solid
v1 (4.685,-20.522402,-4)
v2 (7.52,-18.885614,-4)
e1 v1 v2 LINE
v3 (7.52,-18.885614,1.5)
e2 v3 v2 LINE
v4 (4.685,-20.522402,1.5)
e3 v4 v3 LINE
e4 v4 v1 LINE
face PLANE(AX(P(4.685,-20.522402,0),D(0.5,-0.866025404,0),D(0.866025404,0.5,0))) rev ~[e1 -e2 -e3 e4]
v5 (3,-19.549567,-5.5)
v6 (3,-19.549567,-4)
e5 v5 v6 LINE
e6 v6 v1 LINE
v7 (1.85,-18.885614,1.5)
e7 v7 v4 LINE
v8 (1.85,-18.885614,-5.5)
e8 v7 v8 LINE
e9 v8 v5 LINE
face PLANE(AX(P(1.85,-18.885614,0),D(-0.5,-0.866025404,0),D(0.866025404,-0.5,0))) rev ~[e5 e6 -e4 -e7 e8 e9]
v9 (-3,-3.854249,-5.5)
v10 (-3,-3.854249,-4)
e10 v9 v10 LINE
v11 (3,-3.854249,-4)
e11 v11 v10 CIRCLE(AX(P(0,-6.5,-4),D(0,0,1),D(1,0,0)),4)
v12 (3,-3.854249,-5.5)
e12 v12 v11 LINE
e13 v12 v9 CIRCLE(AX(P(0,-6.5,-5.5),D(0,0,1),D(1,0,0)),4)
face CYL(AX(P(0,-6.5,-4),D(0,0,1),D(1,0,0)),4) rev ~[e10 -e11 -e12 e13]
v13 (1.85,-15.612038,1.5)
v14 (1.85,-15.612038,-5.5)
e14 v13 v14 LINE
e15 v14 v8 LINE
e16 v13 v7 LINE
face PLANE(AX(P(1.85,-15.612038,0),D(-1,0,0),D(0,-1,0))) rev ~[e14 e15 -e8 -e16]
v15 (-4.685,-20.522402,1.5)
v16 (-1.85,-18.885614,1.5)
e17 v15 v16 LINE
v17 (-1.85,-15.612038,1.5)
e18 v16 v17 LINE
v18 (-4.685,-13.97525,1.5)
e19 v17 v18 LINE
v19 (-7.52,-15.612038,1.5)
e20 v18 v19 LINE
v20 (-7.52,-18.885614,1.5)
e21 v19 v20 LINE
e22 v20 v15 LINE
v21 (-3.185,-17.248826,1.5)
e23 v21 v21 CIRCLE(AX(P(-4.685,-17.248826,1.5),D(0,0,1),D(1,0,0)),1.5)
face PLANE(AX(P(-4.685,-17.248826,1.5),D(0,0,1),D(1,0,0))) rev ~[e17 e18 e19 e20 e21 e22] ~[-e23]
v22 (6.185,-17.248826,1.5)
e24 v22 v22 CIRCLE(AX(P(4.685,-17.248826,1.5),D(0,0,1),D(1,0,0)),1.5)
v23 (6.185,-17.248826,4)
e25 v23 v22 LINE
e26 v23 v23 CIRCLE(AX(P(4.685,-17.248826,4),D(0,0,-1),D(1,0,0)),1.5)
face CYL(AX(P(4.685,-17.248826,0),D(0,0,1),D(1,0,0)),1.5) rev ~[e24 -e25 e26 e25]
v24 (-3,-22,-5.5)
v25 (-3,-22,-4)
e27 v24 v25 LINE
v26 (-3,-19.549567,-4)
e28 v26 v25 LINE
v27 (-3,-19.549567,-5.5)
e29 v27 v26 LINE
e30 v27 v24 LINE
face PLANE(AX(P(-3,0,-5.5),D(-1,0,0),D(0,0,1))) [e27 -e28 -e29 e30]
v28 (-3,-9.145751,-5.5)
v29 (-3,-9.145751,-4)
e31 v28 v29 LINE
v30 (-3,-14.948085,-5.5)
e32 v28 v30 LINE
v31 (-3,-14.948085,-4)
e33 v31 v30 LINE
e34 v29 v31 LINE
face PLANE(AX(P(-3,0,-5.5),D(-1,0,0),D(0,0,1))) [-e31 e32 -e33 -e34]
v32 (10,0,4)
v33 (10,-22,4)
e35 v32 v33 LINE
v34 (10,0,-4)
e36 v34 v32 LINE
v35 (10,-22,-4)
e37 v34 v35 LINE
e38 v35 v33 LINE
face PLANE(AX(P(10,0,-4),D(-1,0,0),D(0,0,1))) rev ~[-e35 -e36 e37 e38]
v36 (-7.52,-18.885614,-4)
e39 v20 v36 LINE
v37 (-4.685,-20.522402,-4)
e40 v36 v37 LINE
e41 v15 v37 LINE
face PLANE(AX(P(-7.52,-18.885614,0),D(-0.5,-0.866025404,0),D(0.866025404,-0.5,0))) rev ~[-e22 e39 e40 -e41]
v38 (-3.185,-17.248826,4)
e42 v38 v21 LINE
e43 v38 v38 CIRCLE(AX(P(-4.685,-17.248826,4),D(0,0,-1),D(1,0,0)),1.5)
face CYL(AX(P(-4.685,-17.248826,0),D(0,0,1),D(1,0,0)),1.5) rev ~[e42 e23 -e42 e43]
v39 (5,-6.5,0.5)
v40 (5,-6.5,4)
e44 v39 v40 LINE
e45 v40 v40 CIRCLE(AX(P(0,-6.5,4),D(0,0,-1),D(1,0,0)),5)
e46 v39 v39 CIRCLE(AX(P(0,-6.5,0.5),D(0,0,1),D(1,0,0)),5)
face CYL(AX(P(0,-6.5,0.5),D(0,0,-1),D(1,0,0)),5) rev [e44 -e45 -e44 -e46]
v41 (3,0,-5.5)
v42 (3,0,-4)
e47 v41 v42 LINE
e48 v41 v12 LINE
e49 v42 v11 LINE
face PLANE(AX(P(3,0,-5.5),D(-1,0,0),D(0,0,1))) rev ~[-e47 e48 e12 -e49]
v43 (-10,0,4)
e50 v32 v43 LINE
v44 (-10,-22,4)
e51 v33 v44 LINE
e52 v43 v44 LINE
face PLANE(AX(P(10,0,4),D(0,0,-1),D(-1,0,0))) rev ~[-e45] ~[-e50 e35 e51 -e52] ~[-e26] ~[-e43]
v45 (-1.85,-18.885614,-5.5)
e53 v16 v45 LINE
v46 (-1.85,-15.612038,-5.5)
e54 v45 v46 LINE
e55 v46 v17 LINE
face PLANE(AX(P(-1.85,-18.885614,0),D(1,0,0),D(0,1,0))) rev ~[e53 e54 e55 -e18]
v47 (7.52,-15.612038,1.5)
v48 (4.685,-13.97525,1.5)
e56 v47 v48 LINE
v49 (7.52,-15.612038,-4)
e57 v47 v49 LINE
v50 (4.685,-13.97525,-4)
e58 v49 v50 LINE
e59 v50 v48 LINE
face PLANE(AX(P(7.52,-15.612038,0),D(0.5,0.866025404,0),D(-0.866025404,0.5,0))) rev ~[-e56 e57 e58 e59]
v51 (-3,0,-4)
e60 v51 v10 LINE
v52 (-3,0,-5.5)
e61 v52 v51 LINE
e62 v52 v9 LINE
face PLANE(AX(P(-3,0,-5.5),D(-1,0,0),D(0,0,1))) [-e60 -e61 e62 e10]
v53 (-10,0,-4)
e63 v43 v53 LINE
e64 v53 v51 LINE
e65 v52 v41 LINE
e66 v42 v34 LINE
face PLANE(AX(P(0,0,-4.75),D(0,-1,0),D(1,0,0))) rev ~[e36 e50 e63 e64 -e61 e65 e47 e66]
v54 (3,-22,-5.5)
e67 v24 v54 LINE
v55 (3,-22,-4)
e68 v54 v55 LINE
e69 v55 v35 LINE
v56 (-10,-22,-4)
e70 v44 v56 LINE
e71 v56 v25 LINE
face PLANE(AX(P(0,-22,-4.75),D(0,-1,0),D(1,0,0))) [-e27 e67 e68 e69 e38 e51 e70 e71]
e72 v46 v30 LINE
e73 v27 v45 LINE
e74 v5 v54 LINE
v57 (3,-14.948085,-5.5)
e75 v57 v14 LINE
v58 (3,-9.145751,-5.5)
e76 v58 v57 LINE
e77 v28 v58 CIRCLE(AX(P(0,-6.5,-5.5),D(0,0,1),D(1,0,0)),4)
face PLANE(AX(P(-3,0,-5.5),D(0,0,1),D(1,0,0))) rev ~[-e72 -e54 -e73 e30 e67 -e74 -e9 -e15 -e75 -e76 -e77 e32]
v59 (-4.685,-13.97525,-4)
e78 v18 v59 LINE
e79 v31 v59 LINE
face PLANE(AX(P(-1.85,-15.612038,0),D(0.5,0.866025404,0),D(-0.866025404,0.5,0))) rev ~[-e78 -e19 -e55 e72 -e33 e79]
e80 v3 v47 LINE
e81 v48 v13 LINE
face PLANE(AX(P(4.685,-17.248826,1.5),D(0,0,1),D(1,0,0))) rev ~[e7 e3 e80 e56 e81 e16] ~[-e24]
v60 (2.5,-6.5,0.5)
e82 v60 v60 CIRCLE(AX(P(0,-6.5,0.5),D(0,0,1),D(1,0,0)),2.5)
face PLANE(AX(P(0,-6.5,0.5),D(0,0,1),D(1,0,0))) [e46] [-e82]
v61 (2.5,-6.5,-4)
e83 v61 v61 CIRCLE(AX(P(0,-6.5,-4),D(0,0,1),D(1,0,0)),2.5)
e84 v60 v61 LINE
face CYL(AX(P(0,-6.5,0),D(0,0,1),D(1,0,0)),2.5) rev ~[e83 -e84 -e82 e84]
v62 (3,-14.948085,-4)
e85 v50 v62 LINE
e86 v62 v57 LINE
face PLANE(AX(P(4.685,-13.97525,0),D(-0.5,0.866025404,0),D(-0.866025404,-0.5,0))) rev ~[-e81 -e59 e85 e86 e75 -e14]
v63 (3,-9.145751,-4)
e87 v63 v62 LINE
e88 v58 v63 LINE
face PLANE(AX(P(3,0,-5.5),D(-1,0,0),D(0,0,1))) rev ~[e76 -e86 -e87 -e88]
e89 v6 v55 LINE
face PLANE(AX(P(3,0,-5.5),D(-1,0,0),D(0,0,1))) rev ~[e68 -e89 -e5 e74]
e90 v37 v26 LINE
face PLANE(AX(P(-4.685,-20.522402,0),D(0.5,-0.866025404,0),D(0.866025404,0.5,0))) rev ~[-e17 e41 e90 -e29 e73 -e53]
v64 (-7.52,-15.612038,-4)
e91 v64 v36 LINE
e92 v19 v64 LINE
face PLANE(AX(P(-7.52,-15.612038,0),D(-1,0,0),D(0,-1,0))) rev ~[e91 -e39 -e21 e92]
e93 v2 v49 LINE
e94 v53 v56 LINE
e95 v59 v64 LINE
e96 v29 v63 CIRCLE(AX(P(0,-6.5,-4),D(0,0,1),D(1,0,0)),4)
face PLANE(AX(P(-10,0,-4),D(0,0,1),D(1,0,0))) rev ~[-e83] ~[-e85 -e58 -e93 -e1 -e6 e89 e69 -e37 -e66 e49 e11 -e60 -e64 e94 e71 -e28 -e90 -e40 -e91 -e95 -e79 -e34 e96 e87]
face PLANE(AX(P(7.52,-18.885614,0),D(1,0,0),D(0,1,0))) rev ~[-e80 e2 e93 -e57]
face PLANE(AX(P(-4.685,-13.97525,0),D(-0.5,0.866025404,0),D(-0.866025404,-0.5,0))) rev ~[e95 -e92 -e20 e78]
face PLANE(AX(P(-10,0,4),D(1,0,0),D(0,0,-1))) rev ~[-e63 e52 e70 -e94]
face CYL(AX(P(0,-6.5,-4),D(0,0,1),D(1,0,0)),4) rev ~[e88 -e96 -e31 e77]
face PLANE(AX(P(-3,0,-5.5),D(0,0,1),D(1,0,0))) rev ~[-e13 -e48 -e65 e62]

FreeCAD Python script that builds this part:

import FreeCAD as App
import Part
import Sketcher
from FreeCAD import Vector
Q = App.Units.Quantity


def add_polygon(sketch, points):
    """Adds a closed chain of lines whose ends are joined by coincident constraints."""
    first, n = sketch.GeometryCount, len(points)
    for a, b in zip(points, points[1:] + points[:1]):
        sketch.addGeometry(Part.LineSegment(App.Vector(*a, 0), App.Vector(*b, 0)), False)
    for i in range(n):
        sketch.addConstraint(Sketcher.Constraint("Coincident", first + i, 2, first + (i + 1) % n, 1))

doc = App.newDocument("Part")
body = doc.addObject("PartDesign::Body", "Body")

sketch1 = doc.addObject("Sketcher::SketchObject", "Sketch")
body.addObject(sketch1)
sketch1.AttachmentSupport = (doc.XZ_Plane, [""])
sketch1.MapMode = "FlatFace"
add_polygon(sketch1, [(-3, -4), (-3, -5.5), (3, -5.5), (3, -4), (10, -4), (10, 4), (-10, 4), (-10, -4)])
sketch1.addConstraint(Sketcher.Constraint("Vertical", 0))
sketch1.addConstraint(Sketcher.Constraint("Horizontal", 1))
sketch1.addConstraint(Sketcher.Constraint("Vertical", 2))
sketch1.addConstraint(Sketcher.Constraint("Horizontal", 3))
sketch1.addConstraint(Sketcher.Constraint("Vertical", 4))
sketch1.addConstraint(Sketcher.Constraint("Horizontal", 5))
sketch1.addConstraint(Sketcher.Constraint("Vertical", 6))
sketch1.addConstraint(Sketcher.Constraint("Horizontal", 7))
sketch1.addConstraint(Sketcher.Constraint("Symmetric", 3, 2, 5, 2, -1, 1))
sketch1.addConstraint(Sketcher.Constraint("Symmetric", 2, 2, 7, 2, -2))
sketch1.addConstraint(Sketcher.Constraint("DistanceX", 1, 1, 1, 2, Q("6 mm")))
sketch1.addConstraint(Sketcher.Constraint("DistanceX", 3, 1, 3, 2, Q("7 mm")))
sketch1.addConstraint(Sketcher.Constraint("DistanceY", 4, 1, 4, 2, Q("8 mm")))
sketch1.addConstraint(Sketcher.Constraint("DistanceY", 0, 2, 0, 1, Q("1.5 mm")))
pad1 = doc.addObject("PartDesign::Pad", "Pad")
body.addObject(pad1)
pad1.Profile = sketch1
pad1.Length = 22

sketch2 = doc.addObject("Sketcher::SketchObject", "Sketch001")
body.addObject(sketch2)
sketch2.AttachmentSupport = (doc.XY_Plane, [""])
sketch2.MapMode = "FlatFace"
sketch2.addGeometry(Part.Circle(Vector(0, -6.5, 0), Vector(0, 0, 1), 2.5), False)
sketch2.addConstraint(Sketcher.Constraint("PointOnObject", 0, 3, -2))
sketch2.addConstraint(Sketcher.Constraint("Diameter", 0, Q("5 mm")))
sketch2.addConstraint(Sketcher.Constraint("DistanceY", 0, 3, -1, 1, Q("6.5 mm")))
pocket1 = doc.addObject("PartDesign::Pocket", "Pocket")
body.addObject(pocket1)
pocket1.Profile = sketch2
pocket1.Type = "ThroughAll"
pocket1.Midplane = True

sketch3 = doc.addObject("Sketcher::SketchObject", "Sketch002")
body.addObject(sketch3)
sketch3.AttachmentSupport = (doc.XY_Plane, [""])
sketch3.MapMode = "FlatFace"
sketch3.AttachmentOffset = App.Placement(Vector(0, 0, 0.5), App.Rotation())
sketch3.addGeometry(Part.Circle(Vector(0, -6.5, 0), Vector(0, 0, 1), 5), False)
sketch3.addGeometry(Part.Circle(Vector(0, -6.5, 0), Vector(0, 0, 1), 2.5), False)
sketch3.addConstraint(Sketcher.Constraint("Coincident", 1, 3, 0, 3))
sketch3.addConstraint(Sketcher.Constraint("PointOnObject", 0, 3, -2))
sketch3.addConstraint(Sketcher.Constraint("Diameter", 0, Q("10 mm")))
sketch3.addConstraint(Sketcher.Constraint("Diameter", 1, Q("5 mm")))
sketch3.addConstraint(Sketcher.Constraint("DistanceY", 0, 3, -1, 1, Q("6.5 mm")))
pocket2 = doc.addObject("PartDesign::Pocket", "Pocket001")
body.addObject(pocket2)
pocket2.Profile = sketch3
pocket2.Length = 24.5
pocket2.Reversed = True

sketch4 = doc.addObject("Sketcher::SketchObject", "Sketch003")
body.addObject(sketch4)
sketch4.AttachmentSupport = (doc.XY_Plane, [""])
sketch4.MapMode = "FlatFace"
sketch4.addGeometry(Part.Circle(Vector(-4.7, -17.2, 0), Vector(0, 0, 1), 1.5), False)
sketch4.addGeometry(Part.Circle(Vector(4.7, -17.2, 0), Vector(0, 0, 1), 1.5), False)
sketch4.addConstraint(Sketcher.Constraint("Equal", 0, 1))
sketch4.addConstraint(Sketcher.Constraint("Symmetric", 0, 3, 1, 3, -2))
sketch4.addConstraint(Sketcher.Constraint("Diameter", 0, Q("3 mm")))
sketch4.addConstraint(Sketcher.Constraint("DistanceX", 0, 3, 1, 3, Q("9.37 mm")))
sketch4.addConstraint(Sketcher.Constraint("DistanceY", 0, 3, -1, 1, Q("17.248826 mm")))
pocket3 = doc.addObject("PartDesign::Pocket", "Pocket002")
body.addObject(pocket3)
pocket3.Profile = sketch4
pocket3.Type = "ThroughAll"
pocket3.Midplane = True

sketch5 = doc.addObject("Sketcher::SketchObject", "Sketch004")
body.addObject(sketch5)
sketch5.AttachmentSupport = (doc.XY_Plane, [""])
sketch5.MapMode = "FlatFace"
add_polygon(sketch5, [(-1.9, -18.9), (-1.9, -15.6), (-4.7, -14), (-7.5, -15.6), (-7.5, -18.9), (-4.7, -20.5)])
sketch5.addGeometry(Part.Circle(Vector(-4.7, -17.2, 0), Vector(0, 0, 1), 1.5), False)
add_polygon(sketch5, [(7.5, -18.9), (7.5, -15.6), (4.7, -14), (1.9, -15.6), (1.9, -18.9), (4.7, -20.5)])
sketch5.addGeometry(Part.Circle(Vector(4.7, -17.2, 0), Vector(0, 0, 1), 1.5), False)
sketch5.addConstraint(Sketcher.Constraint("Vertical", 0))
sketch5.addConstraint(Sketcher.Constraint("Vertical", 3))
sketch5.addConstraint(Sketcher.Constraint("Vertical", 7))
sketch5.addConstraint(Sketcher.Constraint("Vertical", 10))
sketch5.addConstraint(Sketcher.Constraint("Equal", 6, 13))
sketch5.addConstraint(Sketcher.Constraint("Symmetric", 6, 3, 13, 3, -2))
sketch5.addConstraint(Sketcher.Constraint("Symmetric", 2, 2, 7, 2, -2))
sketch5.addConstraint(Sketcher.Constraint("Symmetric", 1, 2, 8, 2, -2))
sketch5.addConstraint(Sketcher.Constraint("Symmetric", 0, 2, 9, 2, -2))
sketch5.addConstraint(Sketcher.Constraint("Symmetric", 4, 2, 11, 2, -2))
sketch5.addConstraint(Sketcher.Constraint("Parallel", 1, 4))
sketch5.addConstraint(Sketcher.Constraint("Parallel", 2, 5))
sketch5.addConstraint(Sketcher.Constraint("Parallel", 4, 8))
sketch5.addConstraint(Sketcher.Constraint("Parallel", 8, 11))
sketch5.addConstraint(Sketcher.Constraint("Parallel", 9, 12))
sketch5.addConstraint(Sketcher.Constraint("Horizontal", 0, 2, 2, 2))
sketch5.addConstraint(Sketcher.Constraint("Horizontal", 3, 2, 5, 2))
sketch5.addConstraint(Sketcher.Constraint("Vertical", 6, 3, 1, 2))
sketch5.addConstraint(Sketcher.Constraint("Diameter", 6, Q("3 mm")))
sketch5.addConstraint(Sketcher.Constraint("Angle", 1, Q("150 deg")))
sketch5.addConstraint(Sketcher.Constraint("DistanceX", 0, 2, 9, 2, Q("3.7 mm")))
sketch5.addConstraint(Sketcher.Constraint("DistanceX", 2, 2, -1, 1, Q("7.52 mm")))
sketch5.addConstraint(Sketcher.Constraint("DistanceY", 0, 1, 0, 2, Q("3.273576 mm")))
sketch5.addConstraint(Sketcher.Constraint("DistanceY", 0, 2, -1, 1, Q("15.612038 mm")))
sketch5.addConstraint(Sketcher.Constraint("DistanceY", 6, 3, 0, 2, Q("1.636788 mm")))
pocket4 = doc.addObject("PartDesign::Pocket", "Pocket003")
body.addObject(pocket4)
pocket4.Profile = sketch5
pocket4.Type = "TwoLengths"
pocket4.Length = 25
pocket4.Length2 = 1.5

sketch6 = doc.addObject("Sketcher::SketchObject", "Sketch005")
body.addObject(sketch6)
sketch6.AttachmentSupport = (doc.XY_Plane, [""])
sketch6.MapMode = "FlatFace"
sketch6.AttachmentOffset = App.Placement(Vector(0, 0, -4), App.Rotation())
sketch6.addGeometry(Part.Circle(Vector(0, -6.5, 0), Vector(0, 0, 1), 4), False)
sketch6.addGeometry(Part.Circle(Vector(0, -6.5, 0), Vector(0, 0, 1), 2.5), False)
sketch6.addConstraint(Sketcher.Constraint("Coincident", 1, 3, 0, 3))
sketch6.addConstraint(Sketcher.Constraint("PointOnObject", 0, 3, -2))
sketch6.addConstraint(Sketcher.Constraint("Diameter", 0, Q("8 mm")))
sketch6.addConstraint(Sketcher.Constraint("Diameter", 1, Q("5 mm")))
sketch6.addConstraint(Sketcher.Constraint("DistanceY", 0, 3, -1, 1, Q("6.5 mm")))
pocket5 = doc.addObject("PartDesign::Pocket", "Pocket004")
body.addObject(pocket5)
pocket5.Profile = sketch6
pocket5.Length = 21

doc.recompute()
